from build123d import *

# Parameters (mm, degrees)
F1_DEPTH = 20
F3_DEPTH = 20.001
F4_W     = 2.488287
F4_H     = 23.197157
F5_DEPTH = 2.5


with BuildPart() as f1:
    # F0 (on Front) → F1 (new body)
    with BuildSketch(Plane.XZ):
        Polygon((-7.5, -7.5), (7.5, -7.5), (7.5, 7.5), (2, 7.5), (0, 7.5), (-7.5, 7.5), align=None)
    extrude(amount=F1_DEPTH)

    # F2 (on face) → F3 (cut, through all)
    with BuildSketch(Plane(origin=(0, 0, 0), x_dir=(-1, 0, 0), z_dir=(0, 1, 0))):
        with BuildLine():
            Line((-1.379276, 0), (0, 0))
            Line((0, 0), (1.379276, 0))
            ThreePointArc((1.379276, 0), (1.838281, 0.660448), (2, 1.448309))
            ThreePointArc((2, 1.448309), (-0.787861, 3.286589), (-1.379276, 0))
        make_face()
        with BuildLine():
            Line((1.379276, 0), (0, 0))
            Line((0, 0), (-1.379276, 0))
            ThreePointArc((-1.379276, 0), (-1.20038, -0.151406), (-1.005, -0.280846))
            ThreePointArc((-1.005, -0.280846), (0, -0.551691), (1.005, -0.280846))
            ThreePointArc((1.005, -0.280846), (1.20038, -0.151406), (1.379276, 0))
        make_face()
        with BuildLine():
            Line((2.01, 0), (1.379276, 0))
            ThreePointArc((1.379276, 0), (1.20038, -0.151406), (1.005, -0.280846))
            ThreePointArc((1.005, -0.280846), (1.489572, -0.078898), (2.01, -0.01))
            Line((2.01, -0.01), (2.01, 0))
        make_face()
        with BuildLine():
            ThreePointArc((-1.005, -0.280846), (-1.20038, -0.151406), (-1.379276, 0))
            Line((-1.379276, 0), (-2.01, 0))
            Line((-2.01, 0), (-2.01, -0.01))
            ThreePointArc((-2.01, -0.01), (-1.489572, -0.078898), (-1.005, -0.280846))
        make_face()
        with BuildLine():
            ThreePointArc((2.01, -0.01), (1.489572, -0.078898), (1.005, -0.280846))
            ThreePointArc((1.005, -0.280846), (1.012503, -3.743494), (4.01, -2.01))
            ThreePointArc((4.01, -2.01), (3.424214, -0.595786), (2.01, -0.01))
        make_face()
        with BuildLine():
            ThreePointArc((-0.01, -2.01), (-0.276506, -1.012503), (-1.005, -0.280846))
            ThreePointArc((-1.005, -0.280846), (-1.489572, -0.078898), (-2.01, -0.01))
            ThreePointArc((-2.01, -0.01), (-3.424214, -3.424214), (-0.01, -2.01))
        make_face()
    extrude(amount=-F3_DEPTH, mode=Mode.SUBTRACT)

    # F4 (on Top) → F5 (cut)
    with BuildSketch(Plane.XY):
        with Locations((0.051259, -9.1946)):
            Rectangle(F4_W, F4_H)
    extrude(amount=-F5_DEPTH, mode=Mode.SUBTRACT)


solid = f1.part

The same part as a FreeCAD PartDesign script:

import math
import FreeCAD as App
import Part
import Sketcher
from FreeCAD import Vector
Q = App.Units.Quantity


def add_polygon(sketch, points):
    """Adds a closed chain of lines whose ends are joined by coincident constraints."""
    first, n = sketch.GeometryCount, len(points)
    for a, b in zip(points, points[1:] + points[:1]):
        sketch.addGeometry(Part.LineSegment(App.Vector(*a, 0), App.Vector(*b, 0)), False)
    for i in range(n):
        sketch.addConstraint(Sketcher.Constraint("Coincident", first + i, 2, first + (i + 1) % n, 1))

doc = App.newDocument("Part")
params = doc.addObject("Spreadsheet::Sheet", "Params")
for row, (alias, value) in enumerate([
    ("sketch1_width", "15 mm"),
    ("pad1_length", "20 mm"),
    ("sketch2_radius", "2 mm"),
    ("sketch2_height", "0.01 mm"),
    ("pocket2_length", "2.5 mm"),
], start=1):
    params.set(f"A{row}", alias)
    params.set(f"B{row}", "=" + value)
    params.setAlias(f"B{row}", alias)

body = doc.addObject("PartDesign::Body", "Body")

# Sketch on XZ plane
sketch1 = body.newObject("Sketcher::SketchObject", "Sketch")
sketch1.AttachmentSupport = (doc.getObject("XZ_Plane"), [""])
sketch1.MapMode = "FlatFace"
add_polygon(sketch1, [(-8, -8), (8, -8), (8, 8), (-8, 8)])  # lines 0-3
sketch1.addConstraint([
    Sketcher.Constraint("Horizontal", 0),
    Sketcher.Constraint("Vertical", 1),
    Sketcher.Constraint("Horizontal", 2),
    Sketcher.Constraint("Vertical", 3),
    Sketcher.Constraint("Symmetric", 0, 2, 2, 2, -1, 1),
    Sketcher.Constraint("Equal", 2, 1),
    Sketcher.Constraint("DistanceX", 0, 1, 0, 2, Q("15 mm")),
])
sketch1.setExpression("Constraints[10]", "Params.sketch1_width")
pad1 = body.newObject("PartDesign::Pad", "Pad")
pad1.Profile = sketch1
pad1.setExpression("Length", "Params.pad1_length")

# Sketch on XZ plane
sketch2 = body.newObject("Sketcher::SketchObject", "Sketch001")
sketch2.AttachmentSupport = (doc.getObject("XZ_Plane"), [""])
sketch2.MapMode = "FlatFace"
sketch2.addGeometry([
    Part.ArcOfCircle(Part.Circle(Vector(0, 1.448, 0), Vector(0, 0, 1), 2), math.radians(180), math.radians(226)),  # 0
    Part.ArcOfCircle(Part.Circle(Vector(0, 1.448, 0), Vector(0, 0, 1), 2), math.radians(-46), math.radians(180)),  # 1
    Part.LineSegment(Vector(1.379, 0, 0), Vector(2.01, 0, 0)),  # 2
    Part.LineSegment(Vector(2.01, 0, 0), Vector(2.01, -0.01, 0)),  # 3
    Part.ArcOfCircle(Part.Circle(Vector(2.01, -2.01, 0), Vector(0, 0, 1), 2), math.radians(180), math.radians(450)),  # 4
    Part.ArcOfCircle(Part.Circle(Vector(2.01, -2.01, 0), Vector(0, 0, 1), 2), math.radians(120), math.radians(180)),  # 5
    Part.ArcOfCircle(Part.Circle(Vector(0, 1.448, 0), Vector(0, 0, 1), 2), math.radians(-120), math.radians(-60)),  # 6
    Part.ArcOfCircle(Part.Circle(Vector(-2.01, -2.01, 0), Vector(0, 0, 1), 2), math.radians(180), math.radians(420)),  # 7
    Part.ArcOfCircle(Part.Circle(Vector(-2.01, -2.01, 0), Vector(0, 0, 1), 2), math.radians(90), math.radians(180)),  # 8
    Part.LineSegment(Vector(-2.01, -0.01, 0), Vector(-2.01, 0, 0)),  # 9
    Part.LineSegment(Vector(-2.01, 0, 0), Vector(-1.379, 0, 0)),  # 10
], False)
sketch2.addConstraint([
    Sketcher.Constraint("Tangent", 0, 1, 1, 2),
    Sketcher.Constraint("Coincident", 1, 1, 2, 1),
    Sketcher.Constraint("Coincident", 2, 2, 3, 1),
    Sketcher.Constraint("Coincident", 3, 2, 4, 2),
    Sketcher.Constraint("Tangent", 4, 1, 5, 2),
    Sketcher.Constraint("Tangent", 5, 1, 6, 2),
    Sketcher.Constraint("Tangent", 6, 1, 7, 2),
    Sketcher.Constraint("Tangent", 7, 1, 8, 2),
    Sketcher.Constraint("Coincident", 8, 1, 9, 1),
    Sketcher.Constraint("Coincident", 9, 2, 10, 1),
    Sketcher.Constraint("Coincident", 10, 2, 0, 2),
    Sketcher.Constraint("Horizontal", 2),
    Sketcher.Constraint("Vertical", 3),
    Sketcher.Constraint("Vertical", 9),
    Sketcher.Constraint("Horizontal", 10),
    Sketcher.Constraint("Coincident", 6, 3, 0, 3),
    Sketcher.Constraint("Equal", 1, 4),
    Sketcher.Constraint("Equal", 0, 5),
    Sketcher.Constraint("Equal", 4, 7),
    Sketcher.Constraint("Equal", 7, 8),
    Sketcher.Constraint("Symmetric", 2, 2, 9, 2, -1, 1),
    Sketcher.Constraint("Symmetric", 4, 3, 7, 3, -2),
    Sketcher.Constraint("Symmetric", 1, 1, 10, 2, -2),
    Sketcher.Constraint("Horizontal", 1, 3, 0, 1),
    Sketcher.Constraint("Horizontal", 8, 3, 4, 1),
    Sketcher.Constraint("Horizontal", 4, 1, 7, 1),
    Sketcher.Constraint("Vertical", 4, 3, 2, 2),
    Sketcher.Constraint("Radius", 1, Q("2 mm")),
    Sketcher.Constraint("DistanceY", 3, 2, 3, 1, Q("0.01 mm")),
    Sketcher.Constraint("DistanceX", -1, 1, 4, 3, Q("2.01 mm")),
    Sketcher.Constraint("DistanceX", -1, 1, 5, 1, Q("1.005 mm")),
])
sketch2.setExpression("Constraints[27]", "Params.sketch2_radius")
sketch2.setExpression("Constraints[28]", "Params.sketch2_height")
pocket1 = body.newObject("PartDesign::Pocket", "Pocket")
pocket1.Profile = sketch2
pocket1.Type = "ThroughAll"
pocket1.Reversed = True

# Sketch on XY plane
sketch3 = body.newObject("Sketcher::SketchObject", "Sketch002")
sketch3.AttachmentSupport = (doc.getObject("XY_Plane"), [""])
sketch3.MapMode = "FlatFace"
add_polygon(sketch3, [(-1.2, 2.4), (-1.2, -20.8), (1.3, -20.8), (1.3, 2.4)])  # lines 0-3
sketch3.addConstraint([
    Sketcher.Constraint("Vertical", 0),
    Sketcher.Constraint("Horizontal", 1),
    Sketcher.Constraint("Vertical", 2),
    Sketcher.Constraint("Horizontal", 3),
    Sketcher.Constraint("DistanceX", 1, 1, 1, 2, Q("2.488287 mm")),
    Sketcher.Constraint("DistanceY", 0, 2, 0, 1, Q("23.197157 mm")),
    Sketcher.Constraint("DistanceY", 0, 2, -1, 1, Q("20.793178 mm")),
    Sketcher.Constraint("DistanceX", 0, 2, -1, 1, Q("1.192884 mm")),
])
pocket2 = body.newObject("PartDesign::Pocket", "Pocket001")
pocket2.Profile = sketch3
pocket2.setExpression("Length", "Params.pocket2_length")

doc.recompute()
